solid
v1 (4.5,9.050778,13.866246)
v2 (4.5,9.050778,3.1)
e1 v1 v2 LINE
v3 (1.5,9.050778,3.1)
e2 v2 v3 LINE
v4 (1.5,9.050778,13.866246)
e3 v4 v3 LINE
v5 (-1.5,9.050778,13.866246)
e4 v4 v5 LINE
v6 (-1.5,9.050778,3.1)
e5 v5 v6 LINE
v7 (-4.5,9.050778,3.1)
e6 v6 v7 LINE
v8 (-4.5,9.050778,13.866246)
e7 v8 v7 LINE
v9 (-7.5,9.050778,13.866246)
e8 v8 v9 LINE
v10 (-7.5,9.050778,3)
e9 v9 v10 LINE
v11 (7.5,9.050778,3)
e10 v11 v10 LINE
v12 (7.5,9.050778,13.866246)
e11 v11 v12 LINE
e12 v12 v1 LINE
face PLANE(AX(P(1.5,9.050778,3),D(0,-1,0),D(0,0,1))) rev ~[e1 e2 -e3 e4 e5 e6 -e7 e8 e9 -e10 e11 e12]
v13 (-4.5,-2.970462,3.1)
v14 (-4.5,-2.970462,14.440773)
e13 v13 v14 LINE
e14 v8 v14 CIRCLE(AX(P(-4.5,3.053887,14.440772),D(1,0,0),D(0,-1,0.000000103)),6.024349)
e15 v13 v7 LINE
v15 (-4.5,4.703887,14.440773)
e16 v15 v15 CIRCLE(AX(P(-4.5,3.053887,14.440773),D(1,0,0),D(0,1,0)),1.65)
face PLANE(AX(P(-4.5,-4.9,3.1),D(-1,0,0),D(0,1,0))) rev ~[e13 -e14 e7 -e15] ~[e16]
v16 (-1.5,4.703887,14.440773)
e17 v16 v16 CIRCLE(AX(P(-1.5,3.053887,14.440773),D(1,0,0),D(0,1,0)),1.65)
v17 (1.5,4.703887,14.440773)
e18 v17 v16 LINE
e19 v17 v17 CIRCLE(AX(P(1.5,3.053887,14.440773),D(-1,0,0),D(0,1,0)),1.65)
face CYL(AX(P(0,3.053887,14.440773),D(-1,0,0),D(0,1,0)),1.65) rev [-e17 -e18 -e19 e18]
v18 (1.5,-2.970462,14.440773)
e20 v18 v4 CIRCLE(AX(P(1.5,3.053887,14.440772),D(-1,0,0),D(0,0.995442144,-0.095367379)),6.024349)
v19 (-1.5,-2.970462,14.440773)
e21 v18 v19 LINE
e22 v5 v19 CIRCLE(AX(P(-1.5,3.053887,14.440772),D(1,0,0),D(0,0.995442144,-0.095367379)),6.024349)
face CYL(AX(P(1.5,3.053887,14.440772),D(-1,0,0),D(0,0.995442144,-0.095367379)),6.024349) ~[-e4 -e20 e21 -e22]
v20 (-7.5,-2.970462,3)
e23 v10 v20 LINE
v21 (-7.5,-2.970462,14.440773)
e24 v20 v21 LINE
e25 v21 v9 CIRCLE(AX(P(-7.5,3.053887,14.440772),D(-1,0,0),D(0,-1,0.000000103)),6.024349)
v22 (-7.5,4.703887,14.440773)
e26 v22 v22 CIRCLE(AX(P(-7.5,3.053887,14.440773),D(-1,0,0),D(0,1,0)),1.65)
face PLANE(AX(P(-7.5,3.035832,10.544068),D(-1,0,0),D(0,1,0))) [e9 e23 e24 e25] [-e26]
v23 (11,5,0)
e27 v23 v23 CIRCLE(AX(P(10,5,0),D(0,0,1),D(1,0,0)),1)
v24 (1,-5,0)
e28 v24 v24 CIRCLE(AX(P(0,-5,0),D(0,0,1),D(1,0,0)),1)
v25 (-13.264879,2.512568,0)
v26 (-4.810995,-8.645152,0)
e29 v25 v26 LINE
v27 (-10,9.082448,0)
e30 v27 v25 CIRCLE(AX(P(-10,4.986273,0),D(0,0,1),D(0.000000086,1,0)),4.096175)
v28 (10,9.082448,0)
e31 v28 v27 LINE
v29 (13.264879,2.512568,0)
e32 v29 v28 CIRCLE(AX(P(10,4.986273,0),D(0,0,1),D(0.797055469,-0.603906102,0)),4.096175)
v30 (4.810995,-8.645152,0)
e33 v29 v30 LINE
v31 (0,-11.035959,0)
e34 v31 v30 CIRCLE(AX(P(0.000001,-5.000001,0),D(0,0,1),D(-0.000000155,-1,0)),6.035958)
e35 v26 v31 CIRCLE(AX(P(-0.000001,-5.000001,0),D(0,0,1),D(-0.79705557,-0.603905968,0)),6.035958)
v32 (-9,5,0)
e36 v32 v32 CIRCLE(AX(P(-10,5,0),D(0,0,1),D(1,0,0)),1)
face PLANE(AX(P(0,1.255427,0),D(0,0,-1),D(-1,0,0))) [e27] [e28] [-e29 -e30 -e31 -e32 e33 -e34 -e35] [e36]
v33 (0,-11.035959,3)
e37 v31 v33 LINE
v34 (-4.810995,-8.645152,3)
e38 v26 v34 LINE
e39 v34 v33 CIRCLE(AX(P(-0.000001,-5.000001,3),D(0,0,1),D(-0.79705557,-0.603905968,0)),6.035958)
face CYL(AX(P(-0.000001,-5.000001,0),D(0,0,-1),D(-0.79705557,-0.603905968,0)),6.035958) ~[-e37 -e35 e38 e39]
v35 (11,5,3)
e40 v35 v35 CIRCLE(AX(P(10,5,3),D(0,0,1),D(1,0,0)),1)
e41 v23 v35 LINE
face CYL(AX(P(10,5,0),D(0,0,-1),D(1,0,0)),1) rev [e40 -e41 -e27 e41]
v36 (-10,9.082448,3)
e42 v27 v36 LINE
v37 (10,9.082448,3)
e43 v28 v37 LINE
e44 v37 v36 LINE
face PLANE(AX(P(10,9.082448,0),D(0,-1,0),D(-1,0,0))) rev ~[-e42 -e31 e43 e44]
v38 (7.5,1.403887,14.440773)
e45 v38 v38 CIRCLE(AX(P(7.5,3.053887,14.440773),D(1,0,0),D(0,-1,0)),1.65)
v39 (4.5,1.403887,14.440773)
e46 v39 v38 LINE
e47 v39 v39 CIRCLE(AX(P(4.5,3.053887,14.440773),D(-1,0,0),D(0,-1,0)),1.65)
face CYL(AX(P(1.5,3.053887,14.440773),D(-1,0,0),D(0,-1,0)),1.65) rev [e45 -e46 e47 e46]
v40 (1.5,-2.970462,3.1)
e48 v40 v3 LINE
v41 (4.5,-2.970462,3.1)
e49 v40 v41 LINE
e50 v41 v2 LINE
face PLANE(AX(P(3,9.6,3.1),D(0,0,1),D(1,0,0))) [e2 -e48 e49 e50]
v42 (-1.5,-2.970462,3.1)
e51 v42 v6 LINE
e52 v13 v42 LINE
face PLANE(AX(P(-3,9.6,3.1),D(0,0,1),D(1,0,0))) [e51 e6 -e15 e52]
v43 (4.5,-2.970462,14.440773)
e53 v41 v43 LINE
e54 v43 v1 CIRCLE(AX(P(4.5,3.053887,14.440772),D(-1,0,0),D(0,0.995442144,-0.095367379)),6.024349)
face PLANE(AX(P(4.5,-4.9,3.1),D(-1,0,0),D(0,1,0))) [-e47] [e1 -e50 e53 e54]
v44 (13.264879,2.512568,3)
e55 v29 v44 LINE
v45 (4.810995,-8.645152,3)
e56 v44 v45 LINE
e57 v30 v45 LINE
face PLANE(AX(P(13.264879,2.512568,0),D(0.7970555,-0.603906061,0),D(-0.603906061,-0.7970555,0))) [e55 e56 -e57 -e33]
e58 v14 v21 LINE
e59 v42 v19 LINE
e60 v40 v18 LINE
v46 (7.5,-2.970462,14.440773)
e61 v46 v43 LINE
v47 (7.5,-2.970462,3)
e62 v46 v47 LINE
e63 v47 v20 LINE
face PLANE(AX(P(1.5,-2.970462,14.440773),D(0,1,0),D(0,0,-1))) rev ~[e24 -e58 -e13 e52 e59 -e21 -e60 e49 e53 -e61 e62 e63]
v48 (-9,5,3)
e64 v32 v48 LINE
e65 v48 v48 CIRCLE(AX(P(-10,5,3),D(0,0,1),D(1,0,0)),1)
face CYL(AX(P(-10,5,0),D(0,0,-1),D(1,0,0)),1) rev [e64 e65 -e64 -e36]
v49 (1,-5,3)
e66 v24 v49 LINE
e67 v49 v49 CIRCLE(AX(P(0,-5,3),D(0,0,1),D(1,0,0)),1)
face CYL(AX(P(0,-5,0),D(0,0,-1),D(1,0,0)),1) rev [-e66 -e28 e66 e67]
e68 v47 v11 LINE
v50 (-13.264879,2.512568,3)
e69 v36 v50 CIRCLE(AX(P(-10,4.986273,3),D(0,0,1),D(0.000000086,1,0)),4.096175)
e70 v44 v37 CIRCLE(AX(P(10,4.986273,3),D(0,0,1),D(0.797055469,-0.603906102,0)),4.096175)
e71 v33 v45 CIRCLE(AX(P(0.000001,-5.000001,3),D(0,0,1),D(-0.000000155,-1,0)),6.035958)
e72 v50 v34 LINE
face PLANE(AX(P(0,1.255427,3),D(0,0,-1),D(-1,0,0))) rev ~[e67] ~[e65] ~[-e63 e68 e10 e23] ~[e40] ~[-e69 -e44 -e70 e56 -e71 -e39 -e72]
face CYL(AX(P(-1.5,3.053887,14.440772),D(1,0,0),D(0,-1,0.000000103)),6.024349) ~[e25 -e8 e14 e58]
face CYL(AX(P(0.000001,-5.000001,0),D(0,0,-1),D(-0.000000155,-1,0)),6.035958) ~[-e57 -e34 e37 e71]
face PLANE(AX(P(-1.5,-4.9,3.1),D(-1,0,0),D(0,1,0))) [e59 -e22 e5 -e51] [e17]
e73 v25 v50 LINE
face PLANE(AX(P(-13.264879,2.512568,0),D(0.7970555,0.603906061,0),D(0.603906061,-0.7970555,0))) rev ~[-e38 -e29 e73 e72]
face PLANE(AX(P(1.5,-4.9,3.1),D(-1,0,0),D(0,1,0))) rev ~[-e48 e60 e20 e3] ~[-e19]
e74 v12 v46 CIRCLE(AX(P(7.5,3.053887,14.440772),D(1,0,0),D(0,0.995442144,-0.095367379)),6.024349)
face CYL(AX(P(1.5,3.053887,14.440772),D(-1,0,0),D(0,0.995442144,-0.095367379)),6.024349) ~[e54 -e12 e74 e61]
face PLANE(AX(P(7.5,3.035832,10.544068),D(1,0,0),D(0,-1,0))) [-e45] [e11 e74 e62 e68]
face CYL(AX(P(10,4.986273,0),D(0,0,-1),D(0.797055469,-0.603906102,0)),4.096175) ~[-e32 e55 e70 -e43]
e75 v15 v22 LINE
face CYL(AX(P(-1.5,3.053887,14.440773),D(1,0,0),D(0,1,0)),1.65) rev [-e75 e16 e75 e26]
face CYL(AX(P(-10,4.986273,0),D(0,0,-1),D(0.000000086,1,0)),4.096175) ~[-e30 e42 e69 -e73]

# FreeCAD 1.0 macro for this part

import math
import FreeCAD as App
import Part
import Sketcher

V = App.Vector

doc = App.newDocument("Part")
params = doc.addObject("Spreadsheet::Sheet", "Params")
for row, (alias, value) in enumerate([
    ("sketch1_width", "3 mm"),
    ("sketch1_height", "29 mm"),
    ("pad1_length", "23 mm"),
    ("sketch2_width", "3 mm"),
    ("sketch2_height", "29 mm"),
    ("pad2_length", "23 mm"),
    ("sketch3_diameter", "2 mm"),
    ("sketch3_width", "20 mm"),
    ("pad3_length", "3 mm"),
    ("sketch4_diameter", "3.3 mm"),
    ("sketch4_height", "12 mm"),
    ("pad4_length", "3 mm"),
    ("sketch5_diameter", "3.3 mm"),
    ("pad5_length", "6 mm"),
    ("sketch6_diameter", "3.3 mm"),
    ("pad6_length", "6 mm"),
], start=1):
    params.set(f"A{row}", alias)
    params.set(f"B{row}", "=" + value)
    params.setAlias(f"B{row}", alias)

body = doc.addObject("PartDesign::Body", "Body")

# Sketch on XY plane
sketch1 = doc.addObject("Sketcher::SketchObject", "Sketch")
body.addObject(sketch1)
sketch1.AttachmentSupport = (doc.XY_Plane, [""])
sketch1.MapMode = "FlatFace"
sketch1.AttachmentOffset = App.Placement(V(0, 0, 3.1), App.Rotation())
sketch1.addGeometry(Part.LineSegment(V(1.5, 24.1, 0), V(1.5, -4.9, 0)), False)
sketch1.addGeometry(Part.LineSegment(V(1.5, -4.9, 0), V(4.5, -4.9, 0)), False)
sketch1.addGeometry(Part.LineSegment(V(4.5, -4.9, 0), V(4.5, 24.1, 0)), False)
sketch1.addGeometry(Part.LineSegment(V(4.5, 24.1, 0), V(1.5, 24.1, 0)), False)
sketch1.addConstraint(Sketcher.Constraint("Coincident", 0, 2, 1, 1))
sketch1.addConstraint(Sketcher.Constraint("Coincident", 1, 2, 2, 1))
sketch1.addConstraint(Sketcher.Constraint("Coincident", 2, 2, 3, 1))
sketch1.addConstraint(Sketcher.Constraint("Coincident", 3, 2, 0, 1))
sketch1.addConstraint(Sketcher.Constraint("Vertical", 0))
sketch1.addConstraint(Sketcher.Constraint("Horizontal", 1))
sketch1.addConstraint(Sketcher.Constraint("Vertical", 2))
sketch1.addConstraint(Sketcher.Constraint("Horizontal", 3))
sketch1.addConstraint(Sketcher.Constraint("DistanceX", 1, 1, 1, 2, 3.0))
sketch1.addConstraint(Sketcher.Constraint("DistanceY", 0, 2, 0, 1, 29.0))
sketch1.addConstraint(Sketcher.Constraint("DistanceX", -1, 1, 0, 2, 1.5))
sketch1.addConstraint(Sketcher.Constraint("DistanceY", 0, 2, -1, 1, 4.9))
sketch1.setExpression("Constraints[8]", "Params.sketch1_width")
sketch1.setExpression("Constraints[9]", "Params.sketch1_height")
pad1 = doc.addObject("PartDesign::Pad", "Pad")
body.addObject(pad1)
pad1.Profile = sketch1
pad1.setExpression("Length", "Params.pad1_length")
body2 = doc.addObject("PartDesign::Body", "Body001")

# Sketch on XY plane
sketch2 = doc.addObject("Sketcher::SketchObject", "Sketch001")
body2.addObject(sketch2)
sketch2.AttachmentSupport = (doc.getObject("XY_Plane001"), [""])
sketch2.MapMode = "FlatFace"
sketch2.AttachmentOffset = App.Placement(V(0, 0, 3.1), App.Rotation())
sketch2.addGeometry(Part.LineSegment(V(-4.5, 24.1, 0), V(-4.5, -4.9, 0)), False)
sketch2.addGeometry(Part.LineSegment(V(-4.5, -4.9, 0), V(-1.5, -4.9, 0)), False)
sketch2.addGeometry(Part.LineSegment(V(-1.5, -4.9, 0), V(-1.5, 24.1, 0)), False)
sketch2.addGeometry(Part.LineSegment(V(-1.5, 24.1, 0), V(-4.5, 24.1, 0)), False)
sketch2.addConstraint(Sketcher.Constraint("Coincident", 0, 2, 1, 1))
sketch2.addConstraint(Sketcher.Constraint("Coincident", 1, 2, 2, 1))
sketch2.addConstraint(Sketcher.Constraint("Coincident", 2, 2, 3, 1))
sketch2.addConstraint(Sketcher.Constraint("Coincident", 3, 2, 0, 1))
sketch2.addConstraint(Sketcher.Constraint("Vertical", 0))
sketch2.addConstraint(Sketcher.Constraint("Horizontal", 1))
sketch2.addConstraint(Sketcher.Constraint("Vertical", 2))
sketch2.addConstraint(Sketcher.Constraint("Horizontal", 3))
sketch2.addConstraint(Sketcher.Constraint("DistanceX", 1, 1, 1, 2, 3.0))
sketch2.addConstraint(Sketcher.Constraint("DistanceY", 0, 2, 0, 1, 29.0))
sketch2.addConstraint(Sketcher.Constraint("DistanceX", 0, 2, -1, 1, 4.5))
sketch2.addConstraint(Sketcher.Constraint("DistanceY", 0, 2, -1, 1, 4.9))
sketch2.setExpression("Constraints[8]", "Params.sketch2_width")
sketch2.setExpression("Constraints[9]", "Params.sketch2_height")
pad2 = doc.addObject("PartDesign::Pad", "Pad001")
body2.addObject(pad2)
pad2.Profile = sketch2
pad2.setExpression("Length", "Params.pad2_length")
body3 = doc.addObject("PartDesign::Body", "Body002")

# Sketch on XY plane
sketch3 = doc.addObject("Sketcher::SketchObject", "Sketch002")
body3.addObject(sketch3)
sketch3.AttachmentSupport = (doc.getObject("XY_Plane002"), [""])
sketch3.MapMode = "FlatFace"
sketch3.addGeometry(Part.LineSegment(V(10, 9.1, 0), V(-10, 9.1, 0)), False)
sketch3.addGeometry(Part.ArcOfCircle(Part.Circle(V(-10, 5, 0), V(0, 0, 1), 4.1), math.radians(90), math.radians(217)), False)
sketch3.addGeometry(Part.LineSegment(V(-13.3, 2.5, 0), V(-4.8, -8.6, 0)), False)
sketch3.addGeometry(Part.ArcOfCircle(Part.Circle(V(0, -5, 0), V(0, 0, 1), 6), math.radians(-143), math.radians(-90)), False)
sketch3.addGeometry(Part.ArcOfCircle(Part.Circle(V(0, -5, 0), V(0, 0, 1), 6), math.radians(-90), math.radians(-37)), False)
sketch3.addGeometry(Part.LineSegment(V(4.8, -8.6, 0), V(13.3, 2.5, 0)), False)
sketch3.addGeometry(Part.ArcOfCircle(Part.Circle(V(10, 5, 0), V(0, 0, 1), 4.1), math.radians(-37), math.radians(90)), False)
sketch3.addGeometry(Part.Circle(V(0, -5, 0), V(0, 0, 1), 1), False)
sketch3.addGeometry(Part.Circle(V(10, 5, 0), V(0, 0, 1), 1), False)
sketch3.addGeometry(Part.Circle(V(-10, 5, 0), V(0, 0, 1), 1), False)
sketch3.addConstraint(Sketcher.Constraint("Tangent", 0, 2, 1, 1))
sketch3.addConstraint(Sketcher.Constraint("Tangent", 1, 2, 2, 1))
sketch3.addConstraint(Sketcher.Constraint("Tangent", 2, 2, 3, 1))
sketch3.addConstraint(Sketcher.Constraint("Tangent", 3, 2, 4, 1))
sketch3.addConstraint(Sketcher.Constraint("Tangent", 4, 2, 5, 1))
sketch3.addConstraint(Sketcher.Constraint("Tangent", 5, 2, 6, 1))
sketch3.addConstraint(Sketcher.Constraint("Tangent", 6, 2, 0, 1))
sketch3.addConstraint(Sketcher.Constraint("Horizontal", 0))
sketch3.addConstraint(Sketcher.Constraint("Coincident", 7, 3, 3, 3))
sketch3.addConstraint(Sketcher.Constraint("Equal", 3, 4))
sketch3.addConstraint(Sketcher.Constraint("Equal", 1, 6))
sketch3.addConstraint(Sketcher.Constraint("Equal", 7, 8))
sketch3.addConstraint(Sketcher.Constraint("Equal", 8, 9))
sketch3.addConstraint(Sketcher.Constraint("Symmetric", 8, 3, 9, 3, -2))
sketch3.addConstraint(Sketcher.Constraint("Symmetric", 2, 2, 4, 2, -2))
sketch3.addConstraint(Sketcher.Constraint("PointOnObject", 3, 2, -2))
sketch3.addConstraint(Sketcher.Constraint("Vertical", 6, 3, 8, 3))
sketch3.addConstraint(Sketcher.Constraint("Diameter", 7, 2.0))
sketch3.addConstraint(Sketcher.Constraint("DistanceX", 0, 2, 0, 1, 20.0))
sketch3.addConstraint(Sketcher.Constraint("DistanceY", 3, 3, -1, 1, 5.000001))
sketch3.addConstraint(Sketcher.Constraint("DistanceY", -1, 1, 8, 3, 5.0))
sketch3.addConstraint(Sketcher.Constraint("Radius", 3, 6.035958))
sketch3.addConstraint(Sketcher.Constraint("Radius", 1, 4.096175))
sketch3.addConstraint(Sketcher.Constraint("DistanceX", 1, 2, -1, 1, 13.264879))
sketch3.setExpression("Constraints[17]", "Params.sketch3_diameter")
sketch3.setExpression("Constraints[18]", "Params.sketch3_width")
pad3 = doc.addObject("PartDesign::Pad", "Pad002")
body3.addObject(pad3)
pad3.Profile = sketch3
pad3.setExpression("Length", "Params.pad3_length")

# Sketch on YZ plane
sketch4 = doc.addObject("Sketcher::SketchObject", "Sketch003")
body3.addObject(sketch4)
sketch4.AttachmentSupport = (doc.getObject("YZ_Plane002"), [""])
sketch4.MapMode = "FlatFace"
sketch4.addGeometry(Part.LineSegment(V(-3, 14.4, 0), V(-3, 2.4, 0)), False)
sketch4.addGeometry(Part.LineSegment(V(-3, 2.4, 0), V(9.1, 2.4, 0)), False)
sketch4.addGeometry(Part.LineSegment(V(9.1, 2.4, 0), V(9.1, 13.9, 0)), False)
sketch4.addGeometry(Part.ArcOfCircle(Part.Circle(V(3.1, 14.4, 0), V(0, 0, 1), 6), math.radians(-5), math.radians(180)), False)
sketch4.addGeometry(Part.Circle(V(3.1, 14.4, 0), V(0, 0, 1), 1.6), False)
sketch4.addConstraint(Sketcher.Constraint("Coincident", 0, 2, 1, 1))
sketch4.addConstraint(Sketcher.Constraint("Coincident", 1, 2, 2, 1))
sketch4.addConstraint(Sketcher.Constraint("Coincident", 2, 2, 3, 1))
sketch4.addConstraint(Sketcher.Constraint("Tangent", 3, 2, 0, 1))
sketch4.addConstraint(Sketcher.Constraint("Vertical", 0))
sketch4.addConstraint(Sketcher.Constraint("Vertical", 2))
sketch4.addConstraint(Sketcher.Constraint("Coincident", 4, 3, 3, 3))
sketch4.addConstraint(Sketcher.Constraint("Diameter", 4, 3.3))
sketch4.addConstraint(Sketcher.Constraint("DistanceY", 0, 2, 0, 1, 12.0))
sketch4.addConstraint(Sketcher.Constraint("Radius", 3, 6.024349))
sketch4.addConstraint(Sketcher.Constraint("DistanceY", 2, 1, 2, 2, 11.458353))
sketch4.addConstraint(Sketcher.Constraint("DistanceX", 0, 2, -1, 1, 2.970462))
sketch4.addConstraint(Sketcher.Constraint("DistanceX", 0, 2, 1, 2, 12.02124))
sketch4.addConstraint(Sketcher.Constraint("DistanceY", -1, 1, 3, 3, 14.440772))
sketch4.setExpression("Constraints[7]", "Params.sketch4_diameter")
sketch4.setExpression("Constraints[8]", "Params.sketch4_height")
pad4 = doc.addObject("PartDesign::Pad", "Pad003")
body3.addObject(pad4)
pad4.Profile = sketch4
pad4.setExpression("Length", "Params.pad4_length")
pad4.Midplane = True

# Sketch on YZ plane
sketch5 = doc.addObject("Sketcher::SketchObject", "Sketch004")
body3.addObject(sketch5)
sketch5.AttachmentSupport = (doc.getObject("YZ_Plane002"), [""])
sketch5.MapMode = "FlatFace"
sketch5.AttachmentOffset = App.Placement(V(0, 0, 1.5), App.Rotation())
sketch5.addGeometry(Part.LineSegment(V(-3, 3, 0), V(9.1, 3, 0)), False)
sketch5.addGeometry(Part.LineSegment(V(9.1, 3, 0), V(9.1, 13.9, 0)), False)
sketch5.addGeometry(Part.ArcOfCircle(Part.Circle(V(3.1, 14.4, 0), V(0, 0, 1), 6), math.radians(-5), math.radians(180)), False)
sketch5.addGeometry(Part.LineSegment(V(-3, 14.4, 0), V(-3, 3, 0)), False)
sketch5.addGeometry(Part.Circle(V(3.1, 14.4, 0), V(0, 0, 1), 1.6), False)
sketch5.addConstraint(Sketcher.Constraint("Coincident", 0, 2, 1, 1))
sketch5.addConstraint(Sketcher.Constraint("Coincident", 1, 2, 2, 1))
sketch5.addConstraint(Sketcher.Constraint("Tangent", 2, 2, 3, 1))
sketch5.addConstraint(Sketcher.Constraint("Coincident", 3, 2, 0, 1))
sketch5.addConstraint(Sketcher.Constraint("Horizontal", 0))
sketch5.addConstraint(Sketcher.Constraint("Vertical", 1))
sketch5.addConstraint(Sketcher.Constraint("Vertical", 3))
sketch5.addConstraint(Sketcher.Constraint("Coincident", 4, 3, 2, 3))
sketch5.addConstraint(Sketcher.Constraint("Diameter", 4, 3.3))
sketch5.addConstraint(Sketcher.Constraint("DistanceY", -1, 1, 0, 2, 3.0))
sketch5.addConstraint(Sketcher.Constraint("Radius", 2, 6.024349))
sketch5.addConstraint(Sketcher.Constraint("DistanceX", 0, 1, 0, 2, 12.02124))
sketch5.addConstraint(Sketcher.Constraint("DistanceY", 1, 1, 1, 2, 10.866246))
sketch5.addConstraint(Sketcher.Constraint("DistanceX", 2, 2, -1, 1, 2.970462))
sketch5.setExpression("Constraints[8]", "Params.sketch5_diameter")
pad5 = doc.addObject("PartDesign::Pad", "Pad004")
body3.addObject(pad5)
pad5.Profile = sketch5
pad5.setExpression("Length", "Params.pad5_length")

# Sketch on YZ plane
sketch6 = doc.addObject("Sketcher::SketchObject", "Sketch005")
body3.addObject(sketch6)
sketch6.AttachmentSupport = (doc.getObject("YZ_Plane002"), [""])
sketch6.MapMode = "FlatFace"
sketch6.AttachmentOffset = App.Placement(V(0, 0, -1.5), App.Rotation())
sketch6.addGeometry(Part.LineSegment(V(9.1, 3, 0), V(-3, 3, 0)), False)
sketch6.addGeometry(Part.LineSegment(V(-3, 3, 0), V(-3, 14.4, 0)), False)
sketch6.addGeometry(Part.ArcOfCircle(Part.Circle(V(3.1, 14.4, 0), V(0, 0, 1), 6), math.radians(-5), math.radians(180)), False)
sketch6.addGeometry(Part.LineSegment(V(9.1, 13.9, 0), V(9.1, 3, 0)), False)
sketch6.addGeometry(Part.Circle(V(3.1, 14.4, 0), V(0, 0, 1), 1.6), False)
sketch6.addConstraint(Sketcher.Constraint("Coincident", 0, 2, 1, 1))
sketch6.addConstraint(Sketcher.Constraint("Tangent", 1, 2, 2, 2))
sketch6.addConstraint(Sketcher.Constraint("Coincident", 2, 1, 3, 1))
sketch6.addConstraint(Sketcher.Constraint("Coincident", 3, 2, 0, 1))
sketch6.addConstraint(Sketcher.Constraint("Horizontal", 0))
sketch6.addConstraint(Sketcher.Constraint("Vertical", 1))
sketch6.addConstraint(Sketcher.Constraint("Vertical", 3))
sketch6.addConstraint(Sketcher.Constraint("Coincident", 4, 3, 2, 3))
sketch6.addConstraint(Sketcher.Constraint("Diameter", 4, 3.3))
sketch6.addConstraint(Sketcher.Constraint("DistanceY", -1, 1, 0, 2, 3.0))
sketch6.addConstraint(Sketcher.Constraint("Radius", 2, 6.024349))
sketch6.addConstraint(Sketcher.Constraint("DistanceX", 0, 2, 0, 1, 12.02124))
sketch6.addConstraint(Sketcher.Constraint("DistanceY", 1, 1, 1, 2, 11.440773))
sketch6.addConstraint(Sketcher.Constraint("DistanceX", 0, 2, -1, 1, 2.970462))
sketch6.setExpression("Constraints[8]", "Params.sketch6_diameter")
pad6 = doc.addObject("PartDesign::Pad", "Pad005")
body3.addObject(pad6)
pad6.Profile = sketch6
pad6.setExpression("Length", "Params.pad6_length")
pad6.Reversed = True
doc.recompute()

boolean = doc.addObject("PartDesign::Boolean", "Boolean")
body3.addObject(boolean)
boolean.Type = "Cut"
boolean.addObjects([body2])
doc.recompute()

boolean2 = doc.addObject("PartDesign::Boolean", "Boolean001")
body3.addObject(boolean2)
boolean2.Type = "Cut"
boolean2.addObjects([body])

doc.recompute()
